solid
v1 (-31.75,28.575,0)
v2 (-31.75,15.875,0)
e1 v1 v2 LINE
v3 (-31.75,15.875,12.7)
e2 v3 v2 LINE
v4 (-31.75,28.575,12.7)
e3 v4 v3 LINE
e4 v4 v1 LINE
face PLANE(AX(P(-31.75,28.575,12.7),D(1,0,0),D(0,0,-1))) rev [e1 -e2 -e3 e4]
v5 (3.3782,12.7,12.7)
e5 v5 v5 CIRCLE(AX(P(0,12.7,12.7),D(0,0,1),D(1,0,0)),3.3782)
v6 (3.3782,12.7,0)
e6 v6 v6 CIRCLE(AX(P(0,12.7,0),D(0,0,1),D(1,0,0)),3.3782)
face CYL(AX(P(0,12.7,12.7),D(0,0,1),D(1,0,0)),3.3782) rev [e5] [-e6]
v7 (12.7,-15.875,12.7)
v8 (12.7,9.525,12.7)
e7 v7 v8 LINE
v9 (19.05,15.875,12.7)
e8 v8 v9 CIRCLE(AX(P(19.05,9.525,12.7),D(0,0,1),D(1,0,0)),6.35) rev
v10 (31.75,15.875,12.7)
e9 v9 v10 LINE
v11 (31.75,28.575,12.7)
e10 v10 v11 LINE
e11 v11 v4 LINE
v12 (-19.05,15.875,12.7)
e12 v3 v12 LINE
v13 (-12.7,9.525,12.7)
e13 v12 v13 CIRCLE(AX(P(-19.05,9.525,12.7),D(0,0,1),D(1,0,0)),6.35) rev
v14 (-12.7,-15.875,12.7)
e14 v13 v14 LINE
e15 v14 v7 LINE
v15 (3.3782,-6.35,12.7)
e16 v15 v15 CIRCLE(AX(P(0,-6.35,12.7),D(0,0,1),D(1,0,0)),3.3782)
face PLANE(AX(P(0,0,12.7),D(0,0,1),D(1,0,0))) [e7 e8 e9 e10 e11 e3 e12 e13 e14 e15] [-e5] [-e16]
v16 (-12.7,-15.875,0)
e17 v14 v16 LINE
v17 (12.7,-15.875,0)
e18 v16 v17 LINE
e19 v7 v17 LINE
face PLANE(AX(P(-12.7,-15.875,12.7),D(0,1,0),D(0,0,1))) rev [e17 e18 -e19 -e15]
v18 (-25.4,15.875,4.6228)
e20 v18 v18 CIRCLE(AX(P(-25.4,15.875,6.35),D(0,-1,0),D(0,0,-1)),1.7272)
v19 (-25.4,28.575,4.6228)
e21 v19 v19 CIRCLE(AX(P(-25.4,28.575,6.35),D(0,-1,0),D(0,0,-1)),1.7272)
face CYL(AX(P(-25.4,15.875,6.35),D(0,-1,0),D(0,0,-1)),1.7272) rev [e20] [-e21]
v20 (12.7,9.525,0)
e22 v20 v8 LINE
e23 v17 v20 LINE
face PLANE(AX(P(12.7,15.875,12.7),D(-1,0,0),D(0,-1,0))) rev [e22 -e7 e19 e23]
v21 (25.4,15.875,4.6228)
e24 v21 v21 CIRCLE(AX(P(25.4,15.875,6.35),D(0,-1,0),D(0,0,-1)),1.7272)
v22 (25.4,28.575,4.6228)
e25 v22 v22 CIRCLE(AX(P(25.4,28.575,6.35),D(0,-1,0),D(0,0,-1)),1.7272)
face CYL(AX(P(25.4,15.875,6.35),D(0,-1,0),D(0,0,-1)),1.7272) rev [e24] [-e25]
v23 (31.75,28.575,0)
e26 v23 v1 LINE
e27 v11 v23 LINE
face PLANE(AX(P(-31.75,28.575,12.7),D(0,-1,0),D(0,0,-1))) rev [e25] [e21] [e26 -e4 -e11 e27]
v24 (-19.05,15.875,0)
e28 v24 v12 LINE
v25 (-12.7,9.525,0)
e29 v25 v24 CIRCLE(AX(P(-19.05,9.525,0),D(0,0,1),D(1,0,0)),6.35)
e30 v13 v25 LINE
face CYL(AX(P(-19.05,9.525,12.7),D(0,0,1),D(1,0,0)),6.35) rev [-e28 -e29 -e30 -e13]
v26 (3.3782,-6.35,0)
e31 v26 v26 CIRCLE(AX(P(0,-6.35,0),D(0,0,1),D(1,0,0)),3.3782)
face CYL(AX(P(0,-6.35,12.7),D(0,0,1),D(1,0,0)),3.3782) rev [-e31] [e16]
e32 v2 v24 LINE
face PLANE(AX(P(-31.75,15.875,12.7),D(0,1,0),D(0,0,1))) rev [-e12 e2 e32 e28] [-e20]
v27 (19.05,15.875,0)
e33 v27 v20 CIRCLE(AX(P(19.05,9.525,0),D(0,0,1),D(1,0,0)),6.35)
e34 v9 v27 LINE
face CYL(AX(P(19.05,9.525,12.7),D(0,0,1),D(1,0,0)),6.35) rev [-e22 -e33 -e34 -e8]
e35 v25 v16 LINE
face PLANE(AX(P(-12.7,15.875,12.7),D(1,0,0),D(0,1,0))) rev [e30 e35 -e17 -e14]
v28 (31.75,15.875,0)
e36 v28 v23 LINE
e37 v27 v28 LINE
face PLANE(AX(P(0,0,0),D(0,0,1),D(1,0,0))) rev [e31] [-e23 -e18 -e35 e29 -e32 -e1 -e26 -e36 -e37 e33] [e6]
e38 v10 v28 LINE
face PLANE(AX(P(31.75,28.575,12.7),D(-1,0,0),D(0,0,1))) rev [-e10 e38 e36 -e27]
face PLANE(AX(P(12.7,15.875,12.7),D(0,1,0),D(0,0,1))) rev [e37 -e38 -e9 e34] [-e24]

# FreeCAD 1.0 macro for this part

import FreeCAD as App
import Part
import Sketcher
from FreeCAD import Vector
Q = App.Units.Quantity


def edges_at(feature, points):
    """Names of the edges that pass closest to the given points."""
    edges = feature.Shape.Edges
    near = lambda p: min(range(len(edges)), key=lambda i: edges[i].distToShape(Part.Vertex(*p))[0])
    return sorted({f"Edge{near(p) + 1}" for p in points})


def add_polygon(sketch, points):
    """Adds a closed chain of lines whose ends are joined by coincident constraints."""
    first, n = sketch.GeometryCount, len(points)
    for a, b in zip(points, points[1:] + points[:1]):
        sketch.addGeometry(Part.LineSegment(App.Vector(*a, 0), App.Vector(*b, 0)), False)
    for i in range(n):
        sketch.addConstraint(Sketcher.Constraint("Coincident", first + i, 2, first + (i + 1) % n, 1))

doc = App.newDocument("Part")
body = doc.addObject("PartDesign::Body", "Body")

sketch1 = body.newObject("Sketcher::SketchObject", "Sketch")
sketch1.AttachmentSupport = (doc.getObject("XY_Plane"), [""])
sketch1.MapMode = "FlatFace"
add_polygon(sketch1, [(13, 16), (32, 16), (32, 29), (-32, 29), (-32, 16), (-13, 16), (-13, -16), (13, -16)])
sketch1.addConstraint([
    Sketcher.Constraint("Horizontal", 0),
    Sketcher.Constraint("Vertical", 1),
    Sketcher.Constraint("Horizontal", 2),
    Sketcher.Constraint("Vertical", 3),
    Sketcher.Constraint("Horizontal", 4),
    Sketcher.Constraint("Vertical", 5),
    Sketcher.Constraint("Horizontal", 6),
    Sketcher.Constraint("Vertical", 7),
    Sketcher.Constraint("Symmetric", 4, 2, 6, 2, -1, 1),
    Sketcher.Constraint("Symmetric", 0, 2, 3, 2, -2),
    Sketcher.Constraint("DistanceX", 6, 1, 6, 2, Q("1 in")),
    Sketcher.Constraint("DistanceX", 2, 2, 2, 1, Q("2.5 in")),
    Sketcher.Constraint("DistanceY", 1, 1, 1, 2, Q("0.5 in")),
    Sketcher.Constraint("DistanceY", 5, 2, 5, 1, Q("1.25 in")),
])
pad1 = body.newObject("PartDesign::Pad", "Pad")
pad1.Profile = sketch1
pad1.Length = Q("0.5 in")
doc.recompute()

fillet = body.newObject("PartDesign::Fillet", "Fillet")
fillet.Base = (pad1, edges_at(pad1, [(-12.7, 15.875, 6.35), (12.7, 15.875, 6.35)]))
fillet.Radius = Q("0.25 in")

sketch2 = body.newObject("Sketcher::SketchObject", "Sketch001")
sketch2.AttachmentSupport = (doc.getObject("XY_Plane"), [""])
sketch2.MapMode = "FlatFace"
sketch2.AttachmentOffset = App.Placement(Vector(0, 0, 0.5 * 25.4), App.Rotation())
sketch2.addGeometry([
    Part.Circle(Vector(0, -6.3, 0), Vector(0, 0, 1), 3.4),
    Part.Circle(Vector(0, 12.7, 0), Vector(0, 0, 1), 3.4),
], False)
sketch2.addConstraint([
    Sketcher.Constraint("Equal", 0, 1),
    Sketcher.Constraint("PointOnObject", 0, 3, -2),
    Sketcher.Constraint("PointOnObject", 1, 3, -2),
    Sketcher.Constraint("Diameter", 0, Q("0.266 in")),
    Sketcher.Constraint("DistanceY", -1, 1, 1, 3, Q("0.5 in")),
    Sketcher.Constraint("DistanceY", 0, 3, -1, 1, Q("0.25 in")),
])
doc.recompute()
hole = body.newObject("PartDesign::Hole", "Hole")
hole.Profile = sketch2
hole.ThreadType = "None"
hole.Diameter = Q("0.266 in")
hole.DepthType = "ThroughAll"

sketch3 = body.newObject("Sketcher::SketchObject", "Sketch002")
sketch3.AttachmentSupport = (doc.getObject("XZ_Plane"), [""])
sketch3.MapMode = "FlatFace"
sketch3.AttachmentOffset = App.Placement(Vector(0, 0, -0.625 * 25.4), App.Rotation())
sketch3.addGeometry([
    Part.Circle(Vector(25.4, 6.3, 0), Vector(0, 0, 1), 1.7),
    Part.Circle(Vector(-25.4, 6.3, 0), Vector(0, 0, 1), 1.7),
], False)
sketch3.addConstraint([
    Sketcher.Constraint("Equal", 0, 1),
    Sketcher.Constraint("Symmetric", 0, 3, 1, 3, -2),
    Sketcher.Constraint("Diameter", 0, Q("0.136 in")),
    Sketcher.Constraint("DistanceX", -1, 1, 0, 3, Q("1 in")),
    Sketcher.Constraint("DistanceY", -1, 1, 0, 3, Q("0.25 in")),
])
doc.recompute()
hole2 = body.newObject("PartDesign::Hole", "Hole001")
hole2.Profile = sketch3
hole2.ThreadType = "None"
hole2.Diameter = Q("0.136 in")
hole2.DepthType = "ThroughAll"

doc.recompute()
